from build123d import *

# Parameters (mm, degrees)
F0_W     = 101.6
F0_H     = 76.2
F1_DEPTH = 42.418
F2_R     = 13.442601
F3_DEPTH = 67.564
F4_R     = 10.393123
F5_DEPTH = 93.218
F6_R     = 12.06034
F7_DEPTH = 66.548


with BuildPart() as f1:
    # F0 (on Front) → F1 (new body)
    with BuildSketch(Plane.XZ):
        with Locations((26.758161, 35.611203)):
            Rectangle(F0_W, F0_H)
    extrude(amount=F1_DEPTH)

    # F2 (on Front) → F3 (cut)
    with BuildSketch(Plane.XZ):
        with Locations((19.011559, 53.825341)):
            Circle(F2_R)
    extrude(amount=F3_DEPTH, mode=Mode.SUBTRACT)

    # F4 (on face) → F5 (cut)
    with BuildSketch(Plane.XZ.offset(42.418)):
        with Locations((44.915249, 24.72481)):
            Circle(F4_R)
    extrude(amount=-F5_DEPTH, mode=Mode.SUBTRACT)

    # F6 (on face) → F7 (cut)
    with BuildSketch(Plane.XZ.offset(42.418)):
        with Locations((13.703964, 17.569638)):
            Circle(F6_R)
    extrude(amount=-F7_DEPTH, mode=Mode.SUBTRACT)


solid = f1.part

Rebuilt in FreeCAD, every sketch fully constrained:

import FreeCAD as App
import Part
import Sketcher
Q = App.Units.Quantity

doc = App.newDocument("Part")
params = doc.addObject("Spreadsheet::Sheet", "Params")
for row, (alias, value) in enumerate([
    ("sketch1_width", "4 in"),
    ("sketch1_height", "3 in"),
    ("pad1_length", "1.67 in"),
    ("pocket1_length", "2.66 in"),
    ("pocket2_length", "3.67 in"),
    ("pocket3_length", "2.62 in"),
], start=1):
    params.set(f"A{row}", alias)
    params.set(f"B{row}", "=" + value)
    params.setAlias(f"B{row}", alias)

body = doc.addObject("PartDesign::Body", "Body")

# Sketch on XZ plane
sketch1 = doc.addObject("Sketcher::SketchObject", "Sketch")
body.addObject(sketch1)
sketch1.AttachmentSupport = (doc.XZ_Plane, [""])
sketch1.MapMode = "FlatFace"
sketch1.addGeometry([
    Part.LineSegment(App.Vector(-24, 74, 0), App.Vector(-24, -2, 0)),
    Part.LineSegment(App.Vector(-24, -2, 0), App.Vector(78, -2, 0)),
    Part.LineSegment(App.Vector(78, -2, 0), App.Vector(78, 74, 0)),
    Part.LineSegment(App.Vector(78, 74, 0), App.Vector(-24, 74, 0)),
], False)
sketch1.addConstraint([
    Sketcher.Constraint("Coincident", 0, 2, 1, 1),
    Sketcher.Constraint("Coincident", 1, 2, 2, 1),
    Sketcher.Constraint("Coincident", 2, 2, 3, 1),
    Sketcher.Constraint("Coincident", 3, 2, 0, 1),
    Sketcher.Constraint("Vertical", 0),
    Sketcher.Constraint("Horizontal", 1),
    Sketcher.Constraint("Vertical", 2),
    Sketcher.Constraint("Horizontal", 3),
    Sketcher.Constraint("DistanceX", 1, 1, 1, 2, Q("4 in")),
    Sketcher.Constraint("DistanceY", 0, 2, 0, 1, Q("3 in")),
    Sketcher.Constraint("DistanceX", 0, 2, -1, 1, 24.041839),
    Sketcher.Constraint("DistanceY", 0, 2, -1, 1, 2.488797),
])
sketch1.setExpression("Constraints[8]", "Params.sketch1_width")
sketch1.setExpression("Constraints[9]", "Params.sketch1_height")
pad1 = doc.addObject("PartDesign::Pad", "Pad")
body.addObject(pad1)
pad1.Profile = sketch1
pad1.setExpression("Length", "Params.pad1_length")

# Sketch on XZ plane
sketch2 = doc.addObject("Sketcher::SketchObject", "Sketch001")
body.addObject(sketch2)
sketch2.AttachmentSupport = (doc.XZ_Plane, [""])
sketch2.MapMode = "FlatFace"
sketch2.addGeometry(Part.Circle(App.Vector(19, 54, 0), App.Vector(0, 0, 1), 13), False)
sketch2.addConstraint([
    Sketcher.Constraint("Diameter", 0, 26.885202),
    Sketcher.Constraint("DistanceX", -1, 1, 0, 3, 19.011559),
    Sketcher.Constraint("DistanceY", -1, 1, 0, 3, 53.825341),
])
pocket1 = doc.addObject("PartDesign::Pocket", "Pocket")
body.addObject(pocket1)
pocket1.Profile = sketch2
pocket1.setExpression("Length", "Params.pocket1_length")
pocket1.Reversed = True

# Sketch on XZ plane
sketch3 = doc.addObject("Sketcher::SketchObject", "Sketch002")
body.addObject(sketch3)
sketch3.AttachmentSupport = (doc.XZ_Plane, [""])
sketch3.MapMode = "FlatFace"
sketch3.AttachmentOffset = App.Placement(App.Vector(0, 0, 1.67 * 25.4), App.Rotation())
sketch3.addGeometry(Part.Circle(App.Vector(45, 25, 0), App.Vector(0, 0, 1), 10), False)
sketch3.addConstraint([
    Sketcher.Constraint("Diameter", 0, 20.786246),
    Sketcher.Constraint("DistanceX", -1, 1, 0, 3, 44.915249),
    Sketcher.Constraint("DistanceY", -1, 1, 0, 3, 24.72481),
])
pocket2 = doc.addObject("PartDesign::Pocket", "Pocket001")
body.addObject(pocket2)
pocket2.Profile = sketch3
pocket2.setExpression("Length", "Params.pocket2_length")

# Sketch on XZ plane
sketch4 = doc.addObject("Sketcher::SketchObject", "Sketch003")
body.addObject(sketch4)
sketch4.AttachmentSupport = (doc.XZ_Plane, [""])
sketch4.MapMode = "FlatFace"
sketch4.AttachmentOffset = App.Placement(App.Vector(0, 0, 1.67 * 25.4), App.Rotation())
sketch4.addGeometry(Part.Circle(App.Vector(14, 18, 0), App.Vector(0, 0, 1), 12), False)
sketch4.addConstraint([
    Sketcher.Constraint("Diameter", 0, 24.12068),
    Sketcher.Constraint("DistanceY", -1, 1, 0, 3, 17.569638),
    Sketcher.Constraint("DistanceX", -1, 1, 0, 3, 13.703964),
])
pocket3 = doc.addObject("PartDesign::Pocket", "Pocket002")
body.addObject(pocket3)
pocket3.Profile = sketch4
pocket3.setExpression("Length", "Params.pocket3_length")

doc.recompute()
